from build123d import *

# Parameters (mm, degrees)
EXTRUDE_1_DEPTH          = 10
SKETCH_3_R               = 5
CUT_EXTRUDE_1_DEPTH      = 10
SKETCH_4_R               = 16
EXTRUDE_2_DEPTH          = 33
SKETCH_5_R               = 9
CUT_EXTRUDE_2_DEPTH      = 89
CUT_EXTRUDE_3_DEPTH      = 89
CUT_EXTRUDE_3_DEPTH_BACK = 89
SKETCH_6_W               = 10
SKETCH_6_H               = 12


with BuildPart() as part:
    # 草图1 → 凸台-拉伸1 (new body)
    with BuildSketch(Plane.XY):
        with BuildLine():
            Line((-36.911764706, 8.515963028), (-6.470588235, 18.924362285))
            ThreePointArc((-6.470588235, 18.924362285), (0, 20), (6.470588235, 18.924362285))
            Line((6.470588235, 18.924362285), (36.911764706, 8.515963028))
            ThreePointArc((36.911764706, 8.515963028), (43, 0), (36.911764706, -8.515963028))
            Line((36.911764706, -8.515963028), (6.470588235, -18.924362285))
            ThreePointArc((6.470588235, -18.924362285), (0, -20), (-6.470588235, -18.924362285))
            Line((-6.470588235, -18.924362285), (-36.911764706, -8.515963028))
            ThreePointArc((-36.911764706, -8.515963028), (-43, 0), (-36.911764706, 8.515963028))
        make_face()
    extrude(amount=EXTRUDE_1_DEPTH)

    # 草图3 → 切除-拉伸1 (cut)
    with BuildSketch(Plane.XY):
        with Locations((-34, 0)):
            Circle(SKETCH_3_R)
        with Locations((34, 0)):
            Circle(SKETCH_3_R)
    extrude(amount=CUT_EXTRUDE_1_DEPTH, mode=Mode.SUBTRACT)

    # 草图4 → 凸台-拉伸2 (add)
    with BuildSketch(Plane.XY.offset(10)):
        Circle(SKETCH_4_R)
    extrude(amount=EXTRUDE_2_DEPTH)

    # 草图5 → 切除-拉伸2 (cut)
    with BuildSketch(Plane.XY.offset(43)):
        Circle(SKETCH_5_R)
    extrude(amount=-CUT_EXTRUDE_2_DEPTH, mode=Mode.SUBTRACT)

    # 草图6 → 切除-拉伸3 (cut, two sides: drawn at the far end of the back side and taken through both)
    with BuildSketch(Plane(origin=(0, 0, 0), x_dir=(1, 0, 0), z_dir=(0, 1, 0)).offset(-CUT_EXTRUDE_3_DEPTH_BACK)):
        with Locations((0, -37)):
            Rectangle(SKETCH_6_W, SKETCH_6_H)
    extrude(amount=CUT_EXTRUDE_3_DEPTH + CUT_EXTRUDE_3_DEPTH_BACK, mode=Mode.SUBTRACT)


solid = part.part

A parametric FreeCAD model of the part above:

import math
import FreeCAD as App
import Part
import Sketcher
from FreeCAD import Vector

doc = App.newDocument("Part")
params = doc.addObject("Spreadsheet::Sheet", "Params")
for row, (alias, value) in enumerate([
    ("sketch1_radius", "9 mm"),
    ("sketch1_radius2", "20 mm"),
    ("pad1_length", "10 mm"),
    ("sketch2_diameter", "10 mm"),
    ("pocket1_length", "10 mm"),
    ("sketch3_diameter", "32 mm"),
    ("pad2_length", "33 mm"),
    ("sketch4_diameter", "18 mm"),
    ("pocket2_length", "89 mm"),
    ("sketch5_width", "10 mm"),
    ("sketch5_height", "12 mm"),
], start=1):
    params.set(f"A{row}", alias)
    params.set(f"B{row}", "=" + value)
    params.setAlias(f"B{row}", alias)

body = doc.addObject("PartDesign::Body", "Body")

# Sketch on XY plane
sketch1 = body.newObject("Sketcher::SketchObject", "Sketch")
sketch1.AttachmentSupport = (doc.getObject("XY_Plane"), [""])
sketch1.MapMode = "FlatFace"
sketch1.addGeometry([
    Part.LineSegment(Vector(-6.470588, 18.924362, 0), Vector(-36.911765, 8.515963, 0)),  # 0
    Part.ArcOfCircle(Part.Circle(Vector(-34, 0, 0), Vector(0, 0, 1), 9), math.radians(108.876504), math.radians(251.123496)),  # 1
    Part.LineSegment(Vector(-36.911765, -8.515963, 0), Vector(-6.470588, -18.924362, 0)),  # 2
    Part.ArcOfCircle(Part.Circle(Vector(0, 0, 0), Vector(0, 0, 1), 20), math.radians(-108.876504), math.radians(-71.123496)),  # 3
    Part.LineSegment(Vector(6.470588, -18.924362, 0), Vector(36.911765, -8.515963, 0)),  # 4
    Part.ArcOfCircle(Part.Circle(Vector(34, 0, 0), Vector(0, 0, 1), 9), math.radians(-71.123496), math.radians(71.123496)),  # 5
    Part.LineSegment(Vector(36.911765, 8.515963, 0), Vector(6.470588, 18.924362, 0)),  # 6
    Part.ArcOfCircle(Part.Circle(Vector(0, 0, 0), Vector(0, 0, 1), 20), math.radians(71.123496), math.radians(108.876504)),  # 7
], False)
sketch1.addConstraint([
    Sketcher.Constraint("Tangent", 0, 2, 1, 1),
    Sketcher.Constraint("Tangent", 1, 2, 2, 1),
    Sketcher.Constraint("Tangent", 2, 2, 3, 1),
    Sketcher.Constraint("Tangent", 3, 2, 4, 1),
    Sketcher.Constraint("Tangent", 4, 2, 5, 1),
    Sketcher.Constraint("Tangent", 5, 2, 6, 1),
    Sketcher.Constraint("Tangent", 6, 2, 7, 1),
    Sketcher.Constraint("Tangent", 7, 2, 0, 1),
    Sketcher.Constraint("Coincident", 3, 3, -1, 1),
    Sketcher.Constraint("Coincident", 7, 3, -1, 1),
    Sketcher.Constraint("Equal", 1, 5),
    Sketcher.Constraint("Equal", 3, 7),
    Sketcher.Constraint("Symmetric", 1, 3, 5, 3, -1, 1),
    Sketcher.Constraint("PointOnObject", 1, 3, -1),
    Sketcher.Constraint("Radius", 1, 9.0),
    Sketcher.Constraint("Radius", 3, 20.0),
    Sketcher.Constraint("DistanceX", 1, 3, -1, 1, 34.0),
])
sketch1.setExpression("Constraints[14]", "Params.sketch1_radius")
sketch1.setExpression("Constraints[15]", "Params.sketch1_radius2")
pad1 = body.newObject("PartDesign::Pad", "Pad")
pad1.Profile = sketch1
pad1.setExpression("Length", "Params.pad1_length")

# Sketch on XY plane
sketch2 = body.newObject("Sketcher::SketchObject", "Sketch001")
sketch2.AttachmentSupport = (doc.getObject("XY_Plane"), [""])
sketch2.MapMode = "FlatFace"
sketch2.addGeometry([
    Part.Circle(Vector(-34, 0, 0), Vector(0, 0, 1), 5),
    Part.Circle(Vector(34, 0, 0), Vector(0, 0, 1), 5),
], False)
sketch2.addConstraint([
    Sketcher.Constraint("Equal", 0, 1),
    Sketcher.Constraint("Symmetric", 0, 3, 1, 3, -1, 1),
    Sketcher.Constraint("PointOnObject", 0, 3, -1),
    Sketcher.Constraint("Diameter", 0, 10.0),
    Sketcher.Constraint("DistanceX", 0, 3, -1, 1, 34.0),
])
sketch2.setExpression("Constraints[3]", "Params.sketch2_diameter")
pocket1 = body.newObject("PartDesign::Pocket", "Pocket")
pocket1.Profile = sketch2
pocket1.setExpression("Length", "Params.pocket1_length")
pocket1.Reversed = True

# Sketch on XY plane
sketch3 = body.newObject("Sketcher::SketchObject", "Sketch002")
sketch3.AttachmentSupport = (doc.getObject("XY_Plane"), [""])
sketch3.MapMode = "FlatFace"
sketch3.AttachmentOffset = App.Placement(Vector(0, 0, 10), App.Rotation())
sketch3.addGeometry(Part.Circle(Vector(0, 0, 0), Vector(0, 0, 1), 16), False)
sketch3.addConstraint([
    Sketcher.Constraint("Coincident", 0, 3, -1, 1),
    Sketcher.Constraint("Diameter", 0, 32.0),
])
sketch3.setExpression("Constraints[1]", "Params.sketch3_diameter")
pad2 = body.newObject("PartDesign::Pad", "Pad001")
pad2.Profile = sketch3
pad2.setExpression("Length", "Params.pad2_length")

# Sketch on XY plane
sketch4 = body.newObject("Sketcher::SketchObject", "Sketch003")
sketch4.AttachmentSupport = (doc.getObject("XY_Plane"), [""])
sketch4.MapMode = "FlatFace"
sketch4.AttachmentOffset = App.Placement(Vector(0, 0, 43), App.Rotation())
sketch4.addGeometry(Part.Circle(Vector(0, 0, 0), Vector(0, 0, 1), 9), False)
sketch4.addConstraint([
    Sketcher.Constraint("Coincident", 0, 3, -1, 1),
    Sketcher.Constraint("Diameter", 0, 18.0),
])
sketch4.setExpression("Constraints[1]", "Params.sketch4_diameter")
pocket2 = body.newObject("PartDesign::Pocket", "Pocket001")
pocket2.Profile = sketch4
pocket2.setExpression("Length", "Params.pocket2_length")

# Sketch on XZ plane
sketch5 = body.newObject("Sketcher::SketchObject", "Sketch004")
sketch5.AttachmentSupport = (doc.getObject("XZ_Plane"), [""])
sketch5.MapMode = "FlatFace"
sketch5.addGeometry([
    Part.LineSegment(Vector(-5, 31, 0), Vector(-5, 43, 0)),
    Part.LineSegment(Vector(-5, 43, 0), Vector(5, 43, 0)),
    Part.LineSegment(Vector(5, 43, 0), Vector(5, 31, 0)),
    Part.LineSegment(Vector(5, 31, 0), Vector(-5, 31, 0)),
], False)
sketch5.addConstraint([
    Sketcher.Constraint("Coincident", 0, 2, 1, 1),
    Sketcher.Constraint("Coincident", 1, 2, 2, 1),
    Sketcher.Constraint("Coincident", 2, 2, 3, 1),
    Sketcher.Constraint("Coincident", 3, 2, 0, 1),
    Sketcher.Constraint("Vertical", 0),
    Sketcher.Constraint("Horizontal", 1),
    Sketcher.Constraint("Vertical", 2),
    Sketcher.Constraint("Horizontal", 3),
    Sketcher.Constraint("DistanceX", 1, 1, 1, 2, 10.0),
    Sketcher.Constraint("DistanceY", 0, 1, 0, 2, 12.0),
    Sketcher.Constraint("DistanceX", 0, 2, -1, 1, 5.0),
    Sketcher.Constraint("DistanceY", -1, 1, 0, 2, 43.0),
])
sketch5.setExpression("Constraints[8]", "Params.sketch5_width")
sketch5.setExpression("Constraints[9]", "Params.sketch5_height")
pocket3 = body.newObject("PartDesign::Pocket", "Pocket002")
pocket3.Profile = sketch5
pocket3.Type = "ThroughAll"
pocket3.Midplane = True

doc.recompute()
